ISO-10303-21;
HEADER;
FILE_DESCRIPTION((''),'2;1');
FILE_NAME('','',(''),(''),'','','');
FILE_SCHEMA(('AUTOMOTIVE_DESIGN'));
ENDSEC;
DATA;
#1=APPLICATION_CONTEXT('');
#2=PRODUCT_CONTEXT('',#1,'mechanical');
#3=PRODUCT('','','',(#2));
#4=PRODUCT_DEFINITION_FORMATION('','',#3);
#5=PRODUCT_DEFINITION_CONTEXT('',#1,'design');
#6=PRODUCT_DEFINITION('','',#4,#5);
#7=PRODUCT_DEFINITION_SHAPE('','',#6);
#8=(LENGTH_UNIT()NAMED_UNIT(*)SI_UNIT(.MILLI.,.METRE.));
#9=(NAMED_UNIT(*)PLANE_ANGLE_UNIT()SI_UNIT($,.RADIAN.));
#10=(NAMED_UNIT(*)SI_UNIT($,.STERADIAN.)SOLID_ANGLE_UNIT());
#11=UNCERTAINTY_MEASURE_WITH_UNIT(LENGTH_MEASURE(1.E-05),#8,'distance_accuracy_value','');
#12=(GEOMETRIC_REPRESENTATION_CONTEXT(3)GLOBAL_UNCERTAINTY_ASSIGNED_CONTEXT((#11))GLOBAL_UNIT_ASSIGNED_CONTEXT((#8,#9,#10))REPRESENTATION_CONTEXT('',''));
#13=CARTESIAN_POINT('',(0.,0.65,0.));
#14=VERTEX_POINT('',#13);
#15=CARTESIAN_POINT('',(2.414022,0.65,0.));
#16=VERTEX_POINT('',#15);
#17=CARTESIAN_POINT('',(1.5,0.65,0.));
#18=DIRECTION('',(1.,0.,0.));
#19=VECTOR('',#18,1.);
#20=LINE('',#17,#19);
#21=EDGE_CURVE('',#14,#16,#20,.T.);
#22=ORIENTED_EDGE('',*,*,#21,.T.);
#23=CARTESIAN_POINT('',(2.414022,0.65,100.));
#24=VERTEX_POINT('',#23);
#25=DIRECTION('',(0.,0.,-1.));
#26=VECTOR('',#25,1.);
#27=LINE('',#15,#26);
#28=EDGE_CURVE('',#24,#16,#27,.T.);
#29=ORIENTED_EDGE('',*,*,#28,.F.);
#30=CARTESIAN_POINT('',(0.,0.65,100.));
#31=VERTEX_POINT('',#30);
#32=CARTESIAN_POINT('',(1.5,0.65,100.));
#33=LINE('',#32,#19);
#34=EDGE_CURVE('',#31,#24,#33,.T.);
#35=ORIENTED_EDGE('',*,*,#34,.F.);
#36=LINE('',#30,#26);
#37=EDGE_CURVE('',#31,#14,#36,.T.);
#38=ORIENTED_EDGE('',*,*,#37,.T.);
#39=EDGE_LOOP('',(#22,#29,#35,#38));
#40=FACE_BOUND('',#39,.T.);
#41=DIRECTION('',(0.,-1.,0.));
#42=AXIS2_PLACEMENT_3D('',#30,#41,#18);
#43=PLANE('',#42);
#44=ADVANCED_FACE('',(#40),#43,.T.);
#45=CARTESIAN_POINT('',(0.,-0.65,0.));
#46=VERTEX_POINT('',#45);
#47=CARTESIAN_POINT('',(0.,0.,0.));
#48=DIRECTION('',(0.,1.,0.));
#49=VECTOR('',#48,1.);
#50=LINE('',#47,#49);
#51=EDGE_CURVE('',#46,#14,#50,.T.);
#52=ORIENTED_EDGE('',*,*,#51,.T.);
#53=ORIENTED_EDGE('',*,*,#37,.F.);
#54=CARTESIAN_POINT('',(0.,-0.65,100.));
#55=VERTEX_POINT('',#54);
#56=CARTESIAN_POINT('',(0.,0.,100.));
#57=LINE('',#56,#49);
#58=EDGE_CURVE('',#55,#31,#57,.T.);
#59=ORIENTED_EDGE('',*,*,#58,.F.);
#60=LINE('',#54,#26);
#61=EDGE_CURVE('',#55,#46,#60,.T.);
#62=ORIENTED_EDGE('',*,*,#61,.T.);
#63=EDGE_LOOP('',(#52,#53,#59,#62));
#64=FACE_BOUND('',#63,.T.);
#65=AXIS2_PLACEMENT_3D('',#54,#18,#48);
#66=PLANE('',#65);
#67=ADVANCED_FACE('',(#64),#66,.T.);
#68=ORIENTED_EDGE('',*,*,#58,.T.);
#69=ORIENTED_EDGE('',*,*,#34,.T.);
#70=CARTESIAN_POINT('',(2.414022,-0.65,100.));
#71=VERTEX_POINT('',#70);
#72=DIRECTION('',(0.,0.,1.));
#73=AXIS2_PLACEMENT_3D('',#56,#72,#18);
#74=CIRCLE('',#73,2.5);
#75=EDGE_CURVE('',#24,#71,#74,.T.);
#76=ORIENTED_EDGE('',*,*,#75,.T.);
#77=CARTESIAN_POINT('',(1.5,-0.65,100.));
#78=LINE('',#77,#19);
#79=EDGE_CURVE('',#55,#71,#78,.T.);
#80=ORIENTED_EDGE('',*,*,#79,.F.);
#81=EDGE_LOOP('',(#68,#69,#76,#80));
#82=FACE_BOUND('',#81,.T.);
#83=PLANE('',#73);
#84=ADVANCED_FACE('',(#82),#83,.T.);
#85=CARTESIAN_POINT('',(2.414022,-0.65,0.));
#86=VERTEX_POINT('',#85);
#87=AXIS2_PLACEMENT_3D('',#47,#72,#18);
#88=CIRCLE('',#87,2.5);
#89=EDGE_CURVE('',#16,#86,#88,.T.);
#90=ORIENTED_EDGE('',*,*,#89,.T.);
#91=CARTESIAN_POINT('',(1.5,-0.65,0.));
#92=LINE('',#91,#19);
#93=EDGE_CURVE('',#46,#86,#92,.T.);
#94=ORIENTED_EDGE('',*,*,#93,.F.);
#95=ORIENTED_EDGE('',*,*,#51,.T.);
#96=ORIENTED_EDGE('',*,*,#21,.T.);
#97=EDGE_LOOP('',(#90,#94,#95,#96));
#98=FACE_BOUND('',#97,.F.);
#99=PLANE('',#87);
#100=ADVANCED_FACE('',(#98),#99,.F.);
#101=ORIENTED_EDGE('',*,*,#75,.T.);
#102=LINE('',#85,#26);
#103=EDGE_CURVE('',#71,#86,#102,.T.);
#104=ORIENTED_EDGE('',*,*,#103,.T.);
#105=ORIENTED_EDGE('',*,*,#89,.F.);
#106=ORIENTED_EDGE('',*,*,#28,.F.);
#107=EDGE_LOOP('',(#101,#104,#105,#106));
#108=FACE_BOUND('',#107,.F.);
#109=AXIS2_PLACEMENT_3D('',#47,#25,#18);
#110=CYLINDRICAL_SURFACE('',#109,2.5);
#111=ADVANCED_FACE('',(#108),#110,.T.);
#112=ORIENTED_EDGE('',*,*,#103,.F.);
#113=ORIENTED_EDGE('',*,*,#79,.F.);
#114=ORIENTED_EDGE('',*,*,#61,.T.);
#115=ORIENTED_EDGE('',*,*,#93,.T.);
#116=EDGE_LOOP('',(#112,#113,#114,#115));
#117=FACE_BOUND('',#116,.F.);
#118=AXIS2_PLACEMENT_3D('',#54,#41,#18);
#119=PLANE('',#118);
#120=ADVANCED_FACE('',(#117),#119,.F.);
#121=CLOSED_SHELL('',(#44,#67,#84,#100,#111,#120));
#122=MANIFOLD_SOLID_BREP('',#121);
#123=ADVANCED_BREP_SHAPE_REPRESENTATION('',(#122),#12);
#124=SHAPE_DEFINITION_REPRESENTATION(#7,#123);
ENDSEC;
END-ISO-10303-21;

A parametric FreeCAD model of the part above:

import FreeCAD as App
import Part
import Sketcher

V = App.Vector

doc = App.newDocument("Part")
body = doc.addObject("PartDesign::Body", "Body")

# Sketch on XY plane
sketch1 = doc.addObject("Sketcher::SketchObject", "Sketch")
body.addObject(sketch1)
sketch1.AttachmentSupport = (doc.XY_Plane, [""])
sketch1.MapMode = "FlatFace"
sketch1.addGeometry(Part.Circle(V(0, 0, 0), V(0, 0, 1), 2.5), False)
sketch1.addConstraint([
    Sketcher.Constraint("Coincident", 0, 3, -1, 1),
    Sketcher.Constraint("Diameter", 0, 5.0),
])
pad1 = doc.addObject("PartDesign::Pad", "Pad")
body.addObject(pad1)
pad1.Profile = sketch1
pad1.Length = 100

# Sketch on XY plane
sketch2 = doc.addObject("Sketcher::SketchObject", "Sketch001")
body.addObject(sketch2)
sketch2.AttachmentSupport = (doc.XY_Plane, [""])
sketch2.MapMode = "FlatFace"
sketch2.AttachmentOffset = App.Placement(V(0, 0, 100), App.Rotation())
sketch2.addGeometry([
    Part.LineSegment(V(0, 0.65, 0), V(0, -0.65, 0)),
    Part.LineSegment(V(0, -0.65, 0), V(3, -0.65, 0)),
    Part.LineSegment(V(3, -0.65, 0), V(3, 0.65, 0)),
    Part.LineSegment(V(3, 0.65, 0), V(0, 0.65, 0)),
], False)
sketch2.addConstraint([
    Sketcher.Constraint("Coincident", 0, 2, 1, 1),
    Sketcher.Constraint("Coincident", 1, 2, 2, 1),
    Sketcher.Constraint("Coincident", 2, 2, 3, 1),
    Sketcher.Constraint("Coincident", 3, 2, 0, 1),
    Sketcher.Constraint("Vertical", 0),
    Sketcher.Constraint("Horizontal", 1),
    Sketcher.Constraint("Vertical", 2),
    Sketcher.Constraint("Horizontal", 3),
    Sketcher.Constraint("Symmetric", 0, 2, 3, 2, -1, 1),
    Sketcher.Constraint("DistanceX", 1, 1, 1, 2, 3.0),
    Sketcher.Constraint("DistanceY", 0, 2, 0, 1, 1.3),
])
pocket1 = doc.addObject("PartDesign::Pocket", "Pocket")
body.addObject(pocket1)
pocket1.Profile = sketch2
pocket1.Length = 100

doc.recompute()
